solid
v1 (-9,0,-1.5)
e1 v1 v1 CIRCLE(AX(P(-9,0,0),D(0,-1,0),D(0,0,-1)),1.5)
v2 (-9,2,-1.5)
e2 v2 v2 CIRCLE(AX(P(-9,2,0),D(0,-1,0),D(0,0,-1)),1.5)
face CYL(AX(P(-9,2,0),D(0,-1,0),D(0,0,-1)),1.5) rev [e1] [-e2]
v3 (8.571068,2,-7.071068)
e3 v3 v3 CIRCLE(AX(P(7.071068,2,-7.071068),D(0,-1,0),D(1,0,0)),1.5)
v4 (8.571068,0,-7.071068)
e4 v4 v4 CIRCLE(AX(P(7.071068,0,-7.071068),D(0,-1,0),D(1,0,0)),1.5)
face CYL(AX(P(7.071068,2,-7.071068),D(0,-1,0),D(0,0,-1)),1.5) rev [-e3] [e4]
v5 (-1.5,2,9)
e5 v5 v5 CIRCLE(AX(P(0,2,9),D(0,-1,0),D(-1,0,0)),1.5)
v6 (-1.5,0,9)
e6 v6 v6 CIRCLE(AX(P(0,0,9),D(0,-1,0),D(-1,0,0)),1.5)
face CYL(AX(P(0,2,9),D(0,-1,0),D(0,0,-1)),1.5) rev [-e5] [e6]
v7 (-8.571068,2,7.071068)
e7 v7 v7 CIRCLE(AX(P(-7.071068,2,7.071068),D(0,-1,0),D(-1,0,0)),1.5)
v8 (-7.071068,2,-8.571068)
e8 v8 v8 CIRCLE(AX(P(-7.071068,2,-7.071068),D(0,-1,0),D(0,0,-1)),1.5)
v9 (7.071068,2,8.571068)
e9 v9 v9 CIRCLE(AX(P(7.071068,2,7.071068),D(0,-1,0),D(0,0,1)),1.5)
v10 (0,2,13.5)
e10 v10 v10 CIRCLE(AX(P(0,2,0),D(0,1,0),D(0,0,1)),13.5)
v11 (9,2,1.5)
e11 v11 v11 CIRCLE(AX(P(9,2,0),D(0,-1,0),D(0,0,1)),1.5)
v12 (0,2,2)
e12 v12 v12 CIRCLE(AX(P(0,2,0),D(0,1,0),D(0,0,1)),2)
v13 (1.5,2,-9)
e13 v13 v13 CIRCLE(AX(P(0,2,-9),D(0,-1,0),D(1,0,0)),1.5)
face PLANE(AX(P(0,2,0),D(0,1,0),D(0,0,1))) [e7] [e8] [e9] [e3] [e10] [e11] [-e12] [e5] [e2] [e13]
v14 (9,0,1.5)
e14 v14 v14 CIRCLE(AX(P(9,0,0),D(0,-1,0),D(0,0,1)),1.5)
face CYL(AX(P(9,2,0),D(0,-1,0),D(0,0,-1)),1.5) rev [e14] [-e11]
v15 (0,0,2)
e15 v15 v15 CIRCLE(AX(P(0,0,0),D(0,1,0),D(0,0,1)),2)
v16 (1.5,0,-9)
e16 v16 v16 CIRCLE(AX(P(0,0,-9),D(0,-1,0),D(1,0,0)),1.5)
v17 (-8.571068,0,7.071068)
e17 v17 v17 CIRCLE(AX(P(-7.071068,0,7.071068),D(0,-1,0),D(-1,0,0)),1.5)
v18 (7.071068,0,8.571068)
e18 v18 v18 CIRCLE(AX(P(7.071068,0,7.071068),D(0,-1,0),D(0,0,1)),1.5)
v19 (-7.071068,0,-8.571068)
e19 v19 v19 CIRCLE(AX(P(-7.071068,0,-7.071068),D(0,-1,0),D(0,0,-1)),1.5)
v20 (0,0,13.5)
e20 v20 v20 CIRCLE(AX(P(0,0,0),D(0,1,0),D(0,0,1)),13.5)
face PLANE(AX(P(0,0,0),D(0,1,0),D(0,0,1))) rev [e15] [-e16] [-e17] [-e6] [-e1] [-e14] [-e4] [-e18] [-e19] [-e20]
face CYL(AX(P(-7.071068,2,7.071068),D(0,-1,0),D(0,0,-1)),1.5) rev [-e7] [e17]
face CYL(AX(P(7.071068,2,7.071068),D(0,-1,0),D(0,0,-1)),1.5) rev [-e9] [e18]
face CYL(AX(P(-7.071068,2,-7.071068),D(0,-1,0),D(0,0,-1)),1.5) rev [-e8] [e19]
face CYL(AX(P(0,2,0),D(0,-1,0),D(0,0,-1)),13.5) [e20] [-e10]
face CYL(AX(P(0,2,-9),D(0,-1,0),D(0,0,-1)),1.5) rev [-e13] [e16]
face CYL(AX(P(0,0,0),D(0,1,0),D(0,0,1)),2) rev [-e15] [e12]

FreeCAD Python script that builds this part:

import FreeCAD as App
import Part
import Sketcher
from FreeCAD import Vector
Q = App.Units.Quantity

doc = App.newDocument("Part")
body = doc.addObject("PartDesign::Body", "Body")

sketch1 = body.newObject("Sketcher::SketchObject", "Sketch")
sketch1.AttachmentSupport = (doc.getObject("XZ_Plane"), [""])
sketch1.MapMode = "FlatFace"
sketch1.addGeometry(Part.Circle(Vector(0, 0, 0), Vector(0, 0, 1), 14), False)
sketch1.addConstraint([
    Sketcher.Constraint("Coincident", 0, 3, -1, 1),
    Sketcher.Constraint("Diameter", 0, Q("27 mm")),
])
pad1 = body.newObject("PartDesign::Pad", "Pad")
pad1.Profile = sketch1
pad1.Length = 2
pad1.Reversed = True

sketch2 = body.newObject("Sketcher::SketchObject", "Sketch001")
sketch2.AttachmentSupport = (doc.getObject("XZ_Plane"), [""])
sketch2.MapMode = "FlatFace"
sketch2.addGeometry([
    Part.Circle(Vector(-9, 0, 0), Vector(0, 0, 1), 1.5),
    Part.Circle(Vector(-7.1, -7.1, 0), Vector(0, 0, 1), 1.5),
], False)
sketch2.addConstraint([
    Sketcher.Constraint("Equal", 0, 1),
    Sketcher.Constraint("PointOnObject", 0, 3, -1),
    Sketcher.Constraint("Diameter", 0, Q("3 mm")),
    Sketcher.Constraint("DistanceX", 0, 3, -1, 1, Q("9 mm")),
    Sketcher.Constraint("DistanceX", 1, 3, -1, 1, Q("7.071068 mm")),
    Sketcher.Constraint("DistanceY", 1, 3, -1, 1, Q("7.071068 mm")),
])
pocket1 = body.newObject("PartDesign::Pocket", "Pocket")
pocket1.Profile = sketch2
pocket1.Type = "ThroughAll"
doc.recompute()

polarpattern = body.newObject("PartDesign::PolarPattern", "PolarPattern")
polarpattern.Originals = [pocket1]
polarpattern.Axis = (doc.getObject("Y_Axis"), [""])
polarpattern.Angle = 360
polarpattern.Occurrences = 4
body.Tip = polarpattern

sketch3 = body.newObject("Sketcher::SketchObject", "Sketch002")
sketch3.AttachmentSupport = (doc.getObject("XZ_Plane"), [""])
sketch3.MapMode = "FlatFace"
sketch3.AttachmentOffset = App.Placement(Vector(0, 0, -2), App.Rotation())
sketch3.addGeometry(Part.Circle(Vector(0, 0, 0), Vector(0, 0, 1), 2), False)
sketch3.addConstraint([
    Sketcher.Constraint("Coincident", 0, 3, -1, 1),
    Sketcher.Constraint("Diameter", 0, Q("4 mm")),
])
pocket2 = body.newObject("PartDesign::Pocket", "Pocket001")
pocket2.Profile = sketch3
pocket2.Type = "ThroughAll"
pocket2.Reversed = True

doc.recompute()
